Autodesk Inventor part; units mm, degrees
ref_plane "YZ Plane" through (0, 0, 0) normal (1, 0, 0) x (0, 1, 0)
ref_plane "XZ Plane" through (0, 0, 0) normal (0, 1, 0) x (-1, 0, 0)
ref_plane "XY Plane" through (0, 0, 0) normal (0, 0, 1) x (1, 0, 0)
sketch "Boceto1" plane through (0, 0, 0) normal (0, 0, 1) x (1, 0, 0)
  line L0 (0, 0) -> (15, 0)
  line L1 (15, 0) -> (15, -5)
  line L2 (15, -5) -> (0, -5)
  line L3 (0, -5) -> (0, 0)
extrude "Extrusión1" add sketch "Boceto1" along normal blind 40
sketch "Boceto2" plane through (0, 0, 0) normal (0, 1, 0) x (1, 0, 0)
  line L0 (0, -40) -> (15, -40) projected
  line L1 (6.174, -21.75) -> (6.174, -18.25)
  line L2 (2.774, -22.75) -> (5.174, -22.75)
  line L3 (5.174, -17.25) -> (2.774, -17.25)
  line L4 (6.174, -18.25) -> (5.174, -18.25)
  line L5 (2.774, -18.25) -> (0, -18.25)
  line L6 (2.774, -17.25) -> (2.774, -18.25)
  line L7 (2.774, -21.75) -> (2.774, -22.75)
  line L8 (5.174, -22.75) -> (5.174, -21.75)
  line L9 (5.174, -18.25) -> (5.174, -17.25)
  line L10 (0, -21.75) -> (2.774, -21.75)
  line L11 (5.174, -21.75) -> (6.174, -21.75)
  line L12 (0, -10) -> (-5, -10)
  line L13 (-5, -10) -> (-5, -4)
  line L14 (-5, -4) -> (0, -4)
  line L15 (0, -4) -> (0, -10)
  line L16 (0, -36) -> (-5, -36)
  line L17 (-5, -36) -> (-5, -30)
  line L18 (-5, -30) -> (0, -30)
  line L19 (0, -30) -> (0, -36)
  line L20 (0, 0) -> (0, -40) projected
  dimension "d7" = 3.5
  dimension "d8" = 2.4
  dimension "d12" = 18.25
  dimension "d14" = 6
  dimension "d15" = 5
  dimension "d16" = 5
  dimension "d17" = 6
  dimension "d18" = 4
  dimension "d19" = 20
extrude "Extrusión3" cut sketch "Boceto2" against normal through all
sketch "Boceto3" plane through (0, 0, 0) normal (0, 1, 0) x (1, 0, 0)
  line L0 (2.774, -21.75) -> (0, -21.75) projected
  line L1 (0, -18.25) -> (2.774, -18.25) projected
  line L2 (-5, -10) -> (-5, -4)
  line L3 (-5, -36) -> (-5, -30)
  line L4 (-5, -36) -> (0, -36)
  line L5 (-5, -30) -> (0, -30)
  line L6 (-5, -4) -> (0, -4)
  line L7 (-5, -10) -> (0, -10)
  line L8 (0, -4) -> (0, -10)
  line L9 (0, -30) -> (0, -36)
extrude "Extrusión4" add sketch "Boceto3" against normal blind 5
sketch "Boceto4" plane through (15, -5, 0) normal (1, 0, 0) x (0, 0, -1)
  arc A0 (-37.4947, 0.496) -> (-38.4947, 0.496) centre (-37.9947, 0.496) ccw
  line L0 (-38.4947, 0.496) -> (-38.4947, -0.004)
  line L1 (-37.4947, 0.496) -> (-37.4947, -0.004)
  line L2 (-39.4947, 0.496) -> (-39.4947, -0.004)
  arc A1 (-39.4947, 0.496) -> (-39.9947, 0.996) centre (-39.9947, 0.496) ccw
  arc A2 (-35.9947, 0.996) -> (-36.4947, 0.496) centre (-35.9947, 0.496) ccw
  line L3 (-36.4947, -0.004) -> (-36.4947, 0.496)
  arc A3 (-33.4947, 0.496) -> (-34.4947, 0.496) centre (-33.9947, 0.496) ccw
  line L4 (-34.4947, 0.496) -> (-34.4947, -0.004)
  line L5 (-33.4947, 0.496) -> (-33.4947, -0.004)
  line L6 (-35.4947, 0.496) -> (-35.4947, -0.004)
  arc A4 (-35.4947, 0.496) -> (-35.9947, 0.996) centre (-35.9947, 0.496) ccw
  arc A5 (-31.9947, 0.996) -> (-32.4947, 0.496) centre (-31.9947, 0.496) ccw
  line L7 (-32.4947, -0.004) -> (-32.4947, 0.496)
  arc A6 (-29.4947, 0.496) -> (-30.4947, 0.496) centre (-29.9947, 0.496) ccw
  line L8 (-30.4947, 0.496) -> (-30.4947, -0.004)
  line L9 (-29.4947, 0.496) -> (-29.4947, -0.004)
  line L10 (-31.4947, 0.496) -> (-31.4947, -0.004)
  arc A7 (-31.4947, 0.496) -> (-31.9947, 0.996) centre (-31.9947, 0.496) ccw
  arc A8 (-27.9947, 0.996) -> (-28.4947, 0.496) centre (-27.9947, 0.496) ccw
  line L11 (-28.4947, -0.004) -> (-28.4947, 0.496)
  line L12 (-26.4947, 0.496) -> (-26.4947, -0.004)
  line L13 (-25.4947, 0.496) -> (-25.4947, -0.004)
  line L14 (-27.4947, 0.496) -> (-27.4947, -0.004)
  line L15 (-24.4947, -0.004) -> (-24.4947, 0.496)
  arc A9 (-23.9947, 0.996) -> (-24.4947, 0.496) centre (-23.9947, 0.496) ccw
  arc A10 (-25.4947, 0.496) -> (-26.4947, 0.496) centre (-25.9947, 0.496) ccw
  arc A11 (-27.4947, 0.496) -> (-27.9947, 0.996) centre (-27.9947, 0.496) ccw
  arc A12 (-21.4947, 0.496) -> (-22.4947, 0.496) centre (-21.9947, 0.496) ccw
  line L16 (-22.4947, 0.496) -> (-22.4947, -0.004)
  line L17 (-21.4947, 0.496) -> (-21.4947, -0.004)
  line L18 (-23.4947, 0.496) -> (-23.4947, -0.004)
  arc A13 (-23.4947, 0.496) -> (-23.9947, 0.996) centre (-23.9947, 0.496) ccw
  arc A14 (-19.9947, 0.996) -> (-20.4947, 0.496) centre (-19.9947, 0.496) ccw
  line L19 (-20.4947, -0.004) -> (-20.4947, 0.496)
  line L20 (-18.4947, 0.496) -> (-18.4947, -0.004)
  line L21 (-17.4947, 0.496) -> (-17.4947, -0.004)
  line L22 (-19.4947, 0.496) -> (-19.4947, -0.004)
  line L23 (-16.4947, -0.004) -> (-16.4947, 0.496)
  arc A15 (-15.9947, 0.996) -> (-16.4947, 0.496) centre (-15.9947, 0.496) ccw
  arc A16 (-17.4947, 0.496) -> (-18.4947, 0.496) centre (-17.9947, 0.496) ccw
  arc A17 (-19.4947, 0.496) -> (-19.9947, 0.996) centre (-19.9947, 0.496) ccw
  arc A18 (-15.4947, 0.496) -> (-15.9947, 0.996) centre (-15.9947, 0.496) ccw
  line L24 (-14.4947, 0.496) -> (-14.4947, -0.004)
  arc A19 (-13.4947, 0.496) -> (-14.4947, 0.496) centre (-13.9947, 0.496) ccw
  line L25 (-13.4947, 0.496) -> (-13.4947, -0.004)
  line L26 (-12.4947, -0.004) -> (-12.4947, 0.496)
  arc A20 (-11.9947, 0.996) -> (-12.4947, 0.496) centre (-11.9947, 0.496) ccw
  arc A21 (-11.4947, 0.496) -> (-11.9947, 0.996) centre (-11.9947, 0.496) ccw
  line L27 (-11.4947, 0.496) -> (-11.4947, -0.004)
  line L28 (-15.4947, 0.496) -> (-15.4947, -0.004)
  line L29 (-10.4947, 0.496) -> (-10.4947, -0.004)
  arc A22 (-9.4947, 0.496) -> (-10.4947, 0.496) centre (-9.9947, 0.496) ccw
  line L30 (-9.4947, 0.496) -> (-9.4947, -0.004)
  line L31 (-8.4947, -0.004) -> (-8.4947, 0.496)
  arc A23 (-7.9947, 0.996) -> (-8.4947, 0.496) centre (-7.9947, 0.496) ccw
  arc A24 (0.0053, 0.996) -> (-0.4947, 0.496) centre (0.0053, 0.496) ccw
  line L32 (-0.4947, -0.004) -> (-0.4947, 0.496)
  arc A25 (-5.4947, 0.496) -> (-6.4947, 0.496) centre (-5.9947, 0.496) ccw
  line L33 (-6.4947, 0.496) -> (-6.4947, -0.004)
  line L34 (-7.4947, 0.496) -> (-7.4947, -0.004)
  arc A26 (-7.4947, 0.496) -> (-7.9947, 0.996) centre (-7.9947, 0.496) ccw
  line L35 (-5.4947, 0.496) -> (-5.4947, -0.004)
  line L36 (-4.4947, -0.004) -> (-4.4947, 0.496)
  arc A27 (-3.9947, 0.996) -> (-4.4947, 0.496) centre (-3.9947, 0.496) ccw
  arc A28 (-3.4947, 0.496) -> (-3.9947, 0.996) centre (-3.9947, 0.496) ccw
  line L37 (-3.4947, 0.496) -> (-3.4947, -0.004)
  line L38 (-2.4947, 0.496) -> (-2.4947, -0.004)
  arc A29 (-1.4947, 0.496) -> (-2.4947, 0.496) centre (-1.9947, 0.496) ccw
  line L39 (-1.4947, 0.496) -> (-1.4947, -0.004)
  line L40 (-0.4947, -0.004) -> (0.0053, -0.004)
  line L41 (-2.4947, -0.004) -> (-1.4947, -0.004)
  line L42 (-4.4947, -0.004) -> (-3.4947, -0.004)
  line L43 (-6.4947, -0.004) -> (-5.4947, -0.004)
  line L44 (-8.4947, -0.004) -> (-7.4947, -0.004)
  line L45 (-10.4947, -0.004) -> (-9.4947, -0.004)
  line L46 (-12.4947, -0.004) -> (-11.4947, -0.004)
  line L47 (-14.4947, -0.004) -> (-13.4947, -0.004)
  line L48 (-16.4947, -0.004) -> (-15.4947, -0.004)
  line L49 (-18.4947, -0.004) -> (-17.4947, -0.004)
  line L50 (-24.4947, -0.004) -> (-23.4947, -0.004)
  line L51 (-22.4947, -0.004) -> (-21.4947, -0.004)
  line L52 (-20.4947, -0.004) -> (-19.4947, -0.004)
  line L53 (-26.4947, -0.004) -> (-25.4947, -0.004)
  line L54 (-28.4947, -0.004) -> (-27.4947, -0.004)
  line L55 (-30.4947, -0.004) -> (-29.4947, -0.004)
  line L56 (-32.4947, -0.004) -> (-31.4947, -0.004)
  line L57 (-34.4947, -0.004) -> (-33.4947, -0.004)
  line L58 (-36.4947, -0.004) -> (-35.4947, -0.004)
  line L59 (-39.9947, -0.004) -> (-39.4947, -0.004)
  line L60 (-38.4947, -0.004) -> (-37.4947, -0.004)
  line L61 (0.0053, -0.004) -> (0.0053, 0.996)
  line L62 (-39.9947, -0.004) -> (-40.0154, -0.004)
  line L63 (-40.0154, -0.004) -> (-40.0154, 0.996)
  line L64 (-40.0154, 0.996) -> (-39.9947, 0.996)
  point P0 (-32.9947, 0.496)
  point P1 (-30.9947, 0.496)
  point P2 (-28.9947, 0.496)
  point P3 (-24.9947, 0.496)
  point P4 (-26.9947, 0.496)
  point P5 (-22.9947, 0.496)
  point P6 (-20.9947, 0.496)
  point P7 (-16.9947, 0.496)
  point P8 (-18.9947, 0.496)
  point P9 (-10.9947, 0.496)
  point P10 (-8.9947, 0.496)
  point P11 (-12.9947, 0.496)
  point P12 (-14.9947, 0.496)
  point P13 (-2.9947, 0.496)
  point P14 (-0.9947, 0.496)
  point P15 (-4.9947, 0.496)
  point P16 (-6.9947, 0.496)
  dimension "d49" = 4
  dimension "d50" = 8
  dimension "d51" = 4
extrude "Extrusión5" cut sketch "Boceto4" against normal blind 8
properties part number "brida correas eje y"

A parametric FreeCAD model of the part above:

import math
import FreeCAD as App
import Part
import Sketcher
Q = App.Units.Quantity

doc = App.newDocument("Part")
body = doc.addObject("PartDesign::Body", "Body")

# Sketch on XY plane
sketch1 = doc.addObject("Sketcher::SketchObject", "Sketch")
body.addObject(sketch1)
sketch1.AttachmentSupport = (doc.XY_Plane, [""])
sketch1.MapMode = "FlatFace"
sketch1.addGeometry([
    Part.LineSegment(App.Vector(15, 0, 0), App.Vector(0, 0, 0)),
    Part.LineSegment(App.Vector(0, 0, 0), App.Vector(0, -5, 0)),
    Part.LineSegment(App.Vector(0, -5, 0), App.Vector(15, -5, 0)),
    Part.LineSegment(App.Vector(15, -5, 0), App.Vector(15, 0, 0)),
], False)
sketch1.addConstraint([
    Sketcher.Constraint("Coincident", 0, 2, 1, 1),
    Sketcher.Constraint("Coincident", 1, 2, 2, 1),
    Sketcher.Constraint("Coincident", 2, 2, 3, 1),
    Sketcher.Constraint("Coincident", 3, 2, 0, 1),
    Sketcher.Constraint("Horizontal", 0),
    Sketcher.Constraint("Vertical", 1),
    Sketcher.Constraint("Horizontal", 2),
    Sketcher.Constraint("Vertical", 3),
    Sketcher.Constraint("Coincident", 0, 2, -1, 1),
    Sketcher.Constraint("DistanceX", 0, 2, 0, 1, Q("15 mm")),
    Sketcher.Constraint("DistanceY", 1, 2, 1, 1, Q("5 mm")),
])
pad1 = doc.addObject("PartDesign::Pad", "Pad")
body.addObject(pad1)
pad1.Profile = sketch1
pad1.Length = 40

# Sketch on XZ plane
sketch2 = doc.addObject("Sketcher::SketchObject", "Sketch001")
body.addObject(sketch2)
sketch2.AttachmentSupport = (doc.XZ_Plane, [""])
sketch2.MapMode = "FlatFace"
sketch2.addGeometry([
    Part.LineSegment(App.Vector(5.2, 21.8, 0), App.Vector(6.2, 21.8, 0)),  # 0
    Part.LineSegment(App.Vector(6.2, 21.8, 0), App.Vector(6.2, 18.2, 0)),  # 1
    Part.LineSegment(App.Vector(6.2, 18.2, 0), App.Vector(5.2, 18.2, 0)),  # 2
    Part.LineSegment(App.Vector(5.2, 18.2, 0), App.Vector(5.2, 17.2, 0)),  # 3
    Part.LineSegment(App.Vector(5.2, 17.2, 0), App.Vector(2.8, 17.2, 0)),  # 4
    Part.LineSegment(App.Vector(2.8, 17.2, 0), App.Vector(2.8, 18.2, 0)),  # 5
    Part.LineSegment(App.Vector(2.8, 18.2, 0), App.Vector(0, 18.2, 0)),  # 6
    Part.LineSegment(App.Vector(0, 18.2, 0), App.Vector(0, 21.8, 0)),  # 7
    Part.LineSegment(App.Vector(0, 21.8, 0), App.Vector(2.8, 21.8, 0)),  # 8
    Part.LineSegment(App.Vector(2.8, 21.8, 0), App.Vector(2.8, 22.8, 0)),  # 9
    Part.LineSegment(App.Vector(2.8, 22.8, 0), App.Vector(5.2, 22.8, 0)),  # 10
    Part.LineSegment(App.Vector(5.2, 22.8, 0), App.Vector(5.2, 21.8, 0)),  # 11
    Part.LineSegment(App.Vector(0, 36, 0), App.Vector(0, 30, 0)),  # 12
    Part.LineSegment(App.Vector(0, 30, 0), App.Vector(-5, 30, 0)),  # 13
    Part.LineSegment(App.Vector(-5, 30, 0), App.Vector(-5, 36, 0)),  # 14
    Part.LineSegment(App.Vector(-5, 36, 0), App.Vector(0, 36, 0)),  # 15
    Part.LineSegment(App.Vector(-5, 10, 0), App.Vector(0, 10, 0)),  # 16
    Part.LineSegment(App.Vector(0, 10, 0), App.Vector(0, 4, 0)),  # 17
    Part.LineSegment(App.Vector(0, 4, 0), App.Vector(-5, 4, 0)),  # 18
    Part.LineSegment(App.Vector(-5, 4, 0), App.Vector(-5, 10, 0)),  # 19
], False)
sketch2.addConstraint([
    Sketcher.Constraint("Coincident", 0, 2, 1, 1),
    Sketcher.Constraint("Coincident", 1, 2, 2, 1),
    Sketcher.Constraint("Coincident", 2, 2, 3, 1),
    Sketcher.Constraint("Coincident", 3, 2, 4, 1),
    Sketcher.Constraint("Coincident", 4, 2, 5, 1),
    Sketcher.Constraint("Coincident", 5, 2, 6, 1),
    Sketcher.Constraint("Coincident", 6, 2, 7, 1),
    Sketcher.Constraint("Coincident", 7, 2, 8, 1),
    Sketcher.Constraint("Coincident", 8, 2, 9, 1),
    Sketcher.Constraint("Coincident", 9, 2, 10, 1),
    Sketcher.Constraint("Coincident", 10, 2, 11, 1),
    Sketcher.Constraint("Coincident", 11, 2, 0, 1),
    Sketcher.Constraint("Coincident", 12, 2, 13, 1),
    Sketcher.Constraint("Coincident", 13, 2, 14, 1),
    Sketcher.Constraint("Coincident", 14, 2, 15, 1),
    Sketcher.Constraint("Coincident", 15, 2, 12, 1),
    Sketcher.Constraint("Coincident", 16, 2, 17, 1),
    Sketcher.Constraint("Coincident", 17, 2, 18, 1),
    Sketcher.Constraint("Coincident", 18, 2, 19, 1),
    Sketcher.Constraint("Coincident", 19, 2, 16, 1),
    Sketcher.Constraint("Horizontal", 0),
    Sketcher.Constraint("Vertical", 1),
    Sketcher.Constraint("Horizontal", 2),
    Sketcher.Constraint("Vertical", 3),
    Sketcher.Constraint("Horizontal", 4),
    Sketcher.Constraint("Vertical", 5),
    Sketcher.Constraint("Horizontal", 6),
    Sketcher.Constraint("Vertical", 7),
    Sketcher.Constraint("Horizontal", 8),
    Sketcher.Constraint("Vertical", 9),
    Sketcher.Constraint("Horizontal", 10),
    Sketcher.Constraint("Vertical", 11),
    Sketcher.Constraint("Vertical", 12),
    Sketcher.Constraint("Horizontal", 13),
    Sketcher.Constraint("Vertical", 14),
    Sketcher.Constraint("Horizontal", 15),
    Sketcher.Constraint("Horizontal", 16),
    Sketcher.Constraint("Vertical", 17),
    Sketcher.Constraint("Horizontal", 18),
    Sketcher.Constraint("Vertical", 19),
    Sketcher.Constraint("PointOnObject", 6, 2, -2),
    Sketcher.Constraint("PointOnObject", 12, 2, -2),
    Sketcher.Constraint("PointOnObject", 16, 2, -2),
    Sketcher.Constraint("Horizontal", 2, 2, 5, 2),
    Sketcher.Constraint("Horizontal", 0, 2, 7, 2),
    Sketcher.Constraint("Vertical", 5, 2, 8, 2),
    Sketcher.Constraint("Vertical", 3, 2, 10, 2),
    Sketcher.Constraint("Vertical", 14, 2, 18, 2),
    Sketcher.Constraint("Equal", 2, 3),
    Sketcher.Constraint("Equal", 5, 9),
    Sketcher.Constraint("Equal", 14, 17),
    Sketcher.Constraint("DistanceX", 13, 2, 13, 1, Q("5 mm")),
    Sketcher.Constraint("DistanceY", 12, 2, 12, 1, Q("6 mm")),
    Sketcher.Constraint("DistanceX", 4, 2, 4, 1, Q("2.4 mm")),
    Sketcher.Constraint("DistanceY", 1, 2, 1, 1, Q("3.5 mm")),
    Sketcher.Constraint("DistanceY", -1, 1, 17, 2, Q("4 mm")),
    Sketcher.Constraint("DistanceX", 0, 1, 0, 2, Q("1 mm")),
    Sketcher.Constraint("DistanceY", -1, 1, 1, 2, Q("18.25 mm")),
    Sketcher.Constraint("DistanceY", -1, 1, 12, 2, Q("30 mm")),
    Sketcher.Constraint("DistanceX", 6, 2, 6, 1, Q("2.774 mm")),
])
pocket1 = doc.addObject("PartDesign::Pocket", "Pocket")
body.addObject(pocket1)
pocket1.Profile = sketch2
pocket1.Type = "ThroughAll"
pocket1.Reversed = True

# Sketch on XZ plane
sketch3 = doc.addObject("Sketcher::SketchObject", "Sketch002")
body.addObject(sketch3)
sketch3.AttachmentSupport = (doc.XZ_Plane, [""])
sketch3.MapMode = "FlatFace"
sketch3.addGeometry([
    Part.LineSegment(App.Vector(-5, 4, 0), App.Vector(-5, 10, 0)),  # 0
    Part.LineSegment(App.Vector(-5, 10, 0), App.Vector(0, 10, 0)),  # 1
    Part.LineSegment(App.Vector(0, 10, 0), App.Vector(0, 4, 0)),  # 2
    Part.LineSegment(App.Vector(0, 4, 0), App.Vector(-5, 4, 0)),  # 3
    Part.LineSegment(App.Vector(-5, 30, 0), App.Vector(-5, 36, 0)),  # 4
    Part.LineSegment(App.Vector(-5, 36, 0), App.Vector(0, 36, 0)),  # 5
    Part.LineSegment(App.Vector(0, 36, 0), App.Vector(0, 30, 0)),  # 6
    Part.LineSegment(App.Vector(0, 30, 0), App.Vector(-5, 30, 0)),  # 7
], False)
sketch3.addConstraint([
    Sketcher.Constraint("Coincident", 0, 2, 1, 1),
    Sketcher.Constraint("Coincident", 1, 2, 2, 1),
    Sketcher.Constraint("Coincident", 2, 2, 3, 1),
    Sketcher.Constraint("Coincident", 3, 2, 0, 1),
    Sketcher.Constraint("Coincident", 4, 2, 5, 1),
    Sketcher.Constraint("Coincident", 5, 2, 6, 1),
    Sketcher.Constraint("Coincident", 6, 2, 7, 1),
    Sketcher.Constraint("Coincident", 7, 2, 4, 1),
    Sketcher.Constraint("Vertical", 0),
    Sketcher.Constraint("Horizontal", 1),
    Sketcher.Constraint("Vertical", 2),
    Sketcher.Constraint("Horizontal", 3),
    Sketcher.Constraint("Vertical", 4),
    Sketcher.Constraint("Horizontal", 5),
    Sketcher.Constraint("Vertical", 6),
    Sketcher.Constraint("Horizontal", 7),
    Sketcher.Constraint("PointOnObject", 1, 2, -2),
    Sketcher.Constraint("PointOnObject", 5, 2, -2),
    Sketcher.Constraint("Vertical", 3, 2, 4, 2),
    Sketcher.Constraint("Equal", 2, 4),
    Sketcher.Constraint("DistanceX", 1, 1, 1, 2, Q("5 mm")),
    Sketcher.Constraint("DistanceY", 0, 1, 0, 2, Q("6 mm")),
    Sketcher.Constraint("DistanceY", -1, 1, 0, 2, Q("10 mm")),
    Sketcher.Constraint("DistanceY", -1, 1, 4, 2, Q("36 mm")),
])
pad2 = doc.addObject("PartDesign::Pad", "Pad001")
body.addObject(pad2)
pad2.Profile = sketch3
pad2.Length = 5

# Sketch on YZ plane
sketch4 = doc.addObject("Sketcher::SketchObject", "Sketch003")
body.addObject(sketch4)
sketch4.AttachmentSupport = (doc.YZ_Plane, [""])
sketch4.MapMode = "FlatFace"
sketch4.AttachmentOffset = App.Placement(App.Vector(0, 0, 15), App.Rotation())
sketch4.addGeometry([
    Part.LineSegment(App.Vector(-5.004, 37.495, 0), App.Vector(-4.504, 37.495, 0)),  # 0
    Part.ArcOfCircle(Part.Circle(App.Vector(-4.504, 37.995, 0), App.Vector(0, 0, 1), 0.5), math.radians(-90), math.radians(90)),  # 1
    Part.LineSegment(App.Vector(-4.504, 38.495, 0), App.Vector(-5.004, 38.495, 0)),  # 2
    Part.LineSegment(App.Vector(-5.004, 38.495, 0), App.Vector(-5.004, 37.495, 0)),  # 3
    Part.LineSegment(App.Vector(-5.004, 39.495, 0), App.Vector(-4.504, 39.495, 0)),  # 4
    Part.ArcOfCircle(Part.Circle(App.Vector(-4.504, 39.995, 0), App.Vector(0, 0, 1), 0.5), math.radians(-90), math.radians(0)),  # 5
    Part.LineSegment(App.Vector(-4.004, 39.995, 0), App.Vector(-4.004, 40.015, 0)),  # 6
    Part.LineSegment(App.Vector(-4.004, 40.015, 0), App.Vector(-5.004, 40.015, 0)),  # 7
    Part.LineSegment(App.Vector(-5.004, 40.015, 0), App.Vector(-5.004, 39.495, 0)),  # 8
    Part.ArcOfCircle(Part.Circle(App.Vector(-4.504, 35.995, 0), App.Vector(0, 0, 1), 0.5), math.radians(-90), math.radians(90)),  # 9
    Part.LineSegment(App.Vector(-4.504, 36.495, 0), App.Vector(-5.004, 36.495, 0)),  # 10
    Part.LineSegment(App.Vector(-5.004, 36.495, 0), App.Vector(-5.004, 35.495, 0)),  # 11
    Part.LineSegment(App.Vector(-5.004, 35.495, 0), App.Vector(-4.504, 35.495, 0)),  # 12
    Part.LineSegment(App.Vector(-5.004, 33.495, 0), App.Vector(-4.504, 33.495, 0)),  # 13
    Part.ArcOfCircle(Part.Circle(App.Vector(-4.504, 33.995, 0), App.Vector(0, 0, 1), 0.5), math.radians(-90), math.radians(90)),  # 14
    Part.LineSegment(App.Vector(-4.504, 34.495, 0), App.Vector(-5.004, 34.495, 0)),  # 15
    Part.LineSegment(App.Vector(-5.004, 34.495, 0), App.Vector(-5.004, 33.495, 0)),  # 16
    Part.ArcOfCircle(Part.Circle(App.Vector(-4.504, 31.995, 0), App.Vector(0, 0, 1), 0.5), math.radians(-90), math.radians(90)),  # 17
    Part.LineSegment(App.Vector(-4.504, 32.495, 0), App.Vector(-5.004, 32.495, 0)),  # 18
    Part.LineSegment(App.Vector(-5.004, 32.495, 0), App.Vector(-5.004, 31.495, 0)),  # 19
    Part.LineSegment(App.Vector(-5.004, 31.495, 0), App.Vector(-4.504, 31.495, 0)),  # 20
    Part.LineSegment(App.Vector(-5.004, 29.495, 0), App.Vector(-4.504, 29.495, 0)),  # 21
    Part.ArcOfCircle(Part.Circle(App.Vector(-4.504, 29.995, 0), App.Vector(0, 0, 1), 0.5), math.radians(-90), math.radians(90)),  # 22
    Part.LineSegment(App.Vector(-4.504, 30.495, 0), App.Vector(-5.004, 30.495, 0)),  # 23
    Part.LineSegment(App.Vector(-5.004, 30.495, 0), App.Vector(-5.004, 29.495, 0)),  # 24
    Part.ArcOfCircle(Part.Circle(App.Vector(-4.504, 27.995, 0), App.Vector(0, 0, 1), 0.5), math.radians(-90), math.radians(90)),  # 25
    Part.LineSegment(App.Vector(-4.504, 28.495, 0), App.Vector(-5.004, 28.495, 0)),  # 26
    Part.LineSegment(App.Vector(-5.004, 28.495, 0), App.Vector(-5.004, 27.495, 0)),  # 27
    Part.LineSegment(App.Vector(-5.004, 27.495, 0), App.Vector(-4.504, 27.495, 0)),  # 28
    Part.ArcOfCircle(Part.Circle(App.Vector(-4.504, 25.995, 0), App.Vector(0, 0, 1), 0.5), math.radians(-90), math.radians(90)),  # 29
    Part.LineSegment(App.Vector(-4.504, 26.495, 0), App.Vector(-5.004, 26.495, 0)),  # 30
    Part.LineSegment(App.Vector(-5.004, 26.495, 0), App.Vector(-5.004, 25.495, 0)),  # 31
    Part.LineSegment(App.Vector(-5.004, 25.495, 0), App.Vector(-4.504, 25.495, 0)),  # 32
    Part.LineSegment(App.Vector(-4.504, 24.495, 0), App.Vector(-5.004, 24.495, 0)),  # 33
    Part.LineSegment(App.Vector(-5.004, 24.495, 0), App.Vector(-5.004, 23.495, 0)),  # 34
    Part.LineSegment(App.Vector(-5.004, 23.495, 0), App.Vector(-4.504, 23.495, 0)),  # 35
    Part.ArcOfCircle(Part.Circle(App.Vector(-4.504, 23.995, 0), App.Vector(0, 0, 1), 0.5), math.radians(-90), math.radians(90)),  # 36
    Part.LineSegment(App.Vector(-5.004, 21.495, 0), App.Vector(-4.504, 21.495, 0)),  # 37
    Part.ArcOfCircle(Part.Circle(App.Vector(-4.504, 21.995, 0), App.Vector(0, 0, 1), 0.5), math.radians(-90), math.radians(90)),  # 38
    Part.LineSegment(App.Vector(-4.504, 22.495, 0), App.Vector(-5.004, 22.495, 0)),  # 39
    Part.LineSegment(App.Vector(-5.004, 22.495, 0), App.Vector(-5.004, 21.495, 0)),  # 40
    Part.ArcOfCircle(Part.Circle(App.Vector(-4.504, 19.995, 0), App.Vector(0, 0, 1), 0.5), math.radians(-90), math.radians(90)),  # 41
    Part.LineSegment(App.Vector(-4.504, 20.495, 0), App.Vector(-5.004, 20.495, 0)),  # 42
    Part.LineSegment(App.Vector(-5.004, 20.495, 0), App.Vector(-5.004, 19.495, 0)),  # 43
    Part.LineSegment(App.Vector(-5.004, 19.495, 0), App.Vector(-4.504, 19.495, 0)),  # 44
    Part.ArcOfCircle(Part.Circle(App.Vector(-4.504, 17.995, 0), App.Vector(0, 0, 1), 0.5), math.radians(-90), math.radians(90)),  # 45
    Part.LineSegment(App.Vector(-4.504, 18.495, 0), App.Vector(-5.004, 18.495, 0)),  # 46
    Part.LineSegment(App.Vector(-5.004, 18.495, 0), App.Vector(-5.004, 17.495, 0)),  # 47
    Part.LineSegment(App.Vector(-5.004, 17.495, 0), App.Vector(-4.504, 17.495, 0)),  # 48
    Part.LineSegment(App.Vector(-4.504, 16.495, 0), App.Vector(-5.004, 16.495, 0)),  # 49
    Part.LineSegment(App.Vector(-5.004, 16.495, 0), App.Vector(-5.004, 15.495, 0)),  # 50
    Part.LineSegment(App.Vector(-5.004, 15.495, 0), App.Vector(-4.504, 15.495, 0)),  # 51
    Part.ArcOfCircle(Part.Circle(App.Vector(-4.504, 15.995, 0), App.Vector(0, 0, 1), 0.5), math.radians(-90), math.radians(90)),  # 52
    Part.ArcOfCircle(Part.Circle(App.Vector(-4.504, 13.995, 0), App.Vector(0, 0, 1), 0.5), math.radians(-90), math.radians(90)),  # 53
    Part.LineSegment(App.Vector(-4.504, 14.495, 0), App.Vector(-5.004, 14.495, 0)),  # 54
    Part.LineSegment(App.Vector(-5.004, 14.495, 0), App.Vector(-5.004, 13.495, 0)),  # 55
    Part.LineSegment(App.Vector(-5.004, 13.495, 0), App.Vector(-4.504, 13.495, 0)),  # 56
    Part.LineSegment(App.Vector(-4.504, 12.495, 0), App.Vector(-5.004, 12.495, 0)),  # 57
    Part.LineSegment(App.Vector(-5.004, 12.495, 0), App.Vector(-5.004, 11.495, 0)),  # 58
    Part.LineSegment(App.Vector(-5.004, 11.495, 0), App.Vector(-4.504, 11.495, 0)),  # 59
    Part.ArcOfCircle(Part.Circle(App.Vector(-4.504, 11.995, 0), App.Vector(0, 0, 1), 0.5), math.radians(-90), math.radians(90)),  # 60
    Part.ArcOfCircle(Part.Circle(App.Vector(-4.504, 9.995, 0), App.Vector(0, 0, 1), 0.5), math.radians(-90), math.radians(90)),  # 61
    Part.LineSegment(App.Vector(-4.504, 10.495, 0), App.Vector(-5.004, 10.495, 0)),  # 62
    Part.LineSegment(App.Vector(-5.004, 10.495, 0), App.Vector(-5.004, 9.495, 0)),  # 63
    Part.LineSegment(App.Vector(-5.004, 9.495, 0), App.Vector(-4.504, 9.495, 0)),  # 64
    Part.LineSegment(App.Vector(-4.504, 8.495, 0), App.Vector(-5.004, 8.495, 0)),  # 65
    Part.LineSegment(App.Vector(-5.004, 8.495, 0), App.Vector(-5.004, 7.495, 0)),  # 66
    Part.LineSegment(App.Vector(-5.004, 7.495, 0), App.Vector(-4.504, 7.495, 0)),  # 67
    Part.ArcOfCircle(Part.Circle(App.Vector(-4.504, 7.995, 0), App.Vector(0, 0, 1), 0.5), math.radians(-90), math.radians(90)),  # 68
    Part.LineSegment(App.Vector(-5.004, -0.005, 0), App.Vector(-4.004, -0.005, 0)),  # 69
    Part.ArcOfCircle(Part.Circle(App.Vector(-4.504, -0.005, 0), App.Vector(0, 0, 1), 0.5), math.radians(0), math.radians(90)),  # 70
    Part.LineSegment(App.Vector(-4.504, 0.495, 0), App.Vector(-5.004, 0.495, 0)),  # 71
    Part.LineSegment(App.Vector(-5.004, 0.495, 0), App.Vector(-5.004, -0.005, 0)),  # 72
    Part.LineSegment(App.Vector(-5.004, 5.495, 0), App.Vector(-4.504, 5.495, 0)),  # 73
    Part.ArcOfCircle(Part.Circle(App.Vector(-4.504, 5.995, 0), App.Vector(0, 0, 1), 0.5), math.radians(-90), math.radians(90)),  # 74
    Part.LineSegment(App.Vector(-4.504, 6.495, 0), App.Vector(-5.004, 6.495, 0)),  # 75
    Part.LineSegment(App.Vector(-5.004, 6.495, 0), App.Vector(-5.004, 5.495, 0)),  # 76
    Part.LineSegment(App.Vector(-4.504, 4.495, 0), App.Vector(-5.004, 4.495, 0)),  # 77
    Part.LineSegment(App.Vector(-5.004, 4.495, 0), App.Vector(-5.004, 3.495, 0)),  # 78
    Part.LineSegment(App.Vector(-5.004, 3.495, 0), App.Vector(-4.504, 3.495, 0)),  # 79
    Part.ArcOfCircle(Part.Circle(App.Vector(-4.504, 3.995, 0), App.Vector(0, 0, 1), 0.5), math.radians(-90), math.radians(90)),  # 80
    Part.ArcOfCircle(Part.Circle(App.Vector(-4.504, 1.995, 0), App.Vector(0, 0, 1), 0.5), math.radians(-90), math.radians(90)),  # 81
    Part.LineSegment(App.Vector(-4.504, 2.495, 0), App.Vector(-5.004, 2.495, 0)),  # 82
    Part.LineSegment(App.Vector(-5.004, 2.495, 0), App.Vector(-5.004, 1.495, 0)),  # 83
    Part.LineSegment(App.Vector(-5.004, 1.495, 0), App.Vector(-4.504, 1.495, 0)),  # 84
], False)
sketch4.addConstraint([
    Sketcher.Constraint("Tangent", 0, 2, 1, 1),
    Sketcher.Constraint("Tangent", 1, 2, 2, 1),
    Sketcher.Constraint("Coincident", 2, 2, 3, 1),
    Sketcher.Constraint("Coincident", 3, 2, 0, 1),
    Sketcher.Constraint("Tangent", 4, 2, 5, 1),
    Sketcher.Constraint("Tangent", 5, 2, 6, 1),
    Sketcher.Constraint("Coincident", 6, 2, 7, 1),
    Sketcher.Constraint("Coincident", 7, 2, 8, 1),
    Sketcher.Constraint("Coincident", 8, 2, 4, 1),
    Sketcher.Constraint("Tangent", 9, 2, 10, 1),
    Sketcher.Constraint("Coincident", 10, 2, 11, 1),
    Sketcher.Constraint("Coincident", 11, 2, 12, 1),
    Sketcher.Constraint("Tangent", 12, 2, 9, 1),
    Sketcher.Constraint("Tangent", 13, 2, 14, 1),
    Sketcher.Constraint("Tangent", 14, 2, 15, 1),
    Sketcher.Constraint("Coincident", 15, 2, 16, 1),
    Sketcher.Constraint("Coincident", 16, 2, 13, 1),
    Sketcher.Constraint("Tangent", 17, 2, 18, 1),
    Sketcher.Constraint("Coincident", 18, 2, 19, 1),
    Sketcher.Constraint("Coincident", 19, 2, 20, 1),
    Sketcher.Constraint("Tangent", 20, 2, 17, 1),
    Sketcher.Constraint("Tangent", 21, 2, 22, 1),
    Sketcher.Constraint("Tangent", 22, 2, 23, 1),
    Sketcher.Constraint("Coincident", 23, 2, 24, 1),
    Sketcher.Constraint("Coincident", 24, 2, 21, 1),
    Sketcher.Constraint("Tangent", 25, 2, 26, 1),
    Sketcher.Constraint("Coincident", 26, 2, 27, 1),
    Sketcher.Constraint("Coincident", 27, 2, 28, 1),
    Sketcher.Constraint("Tangent", 28, 2, 25, 1),
    Sketcher.Constraint("Tangent", 29, 2, 30, 1),
    Sketcher.Constraint("Coincident", 30, 2, 31, 1),
    Sketcher.Constraint("Coincident", 31, 2, 32, 1),
    Sketcher.Constraint("Tangent", 32, 2, 29, 1),
    Sketcher.Constraint("Coincident", 33, 2, 34, 1),
    Sketcher.Constraint("Coincident", 34, 2, 35, 1),
    Sketcher.Constraint("Tangent", 35, 2, 36, 1),
    Sketcher.Constraint("Tangent", 36, 2, 33, 1),
    Sketcher.Constraint("Tangent", 37, 2, 38, 1),
    Sketcher.Constraint("Tangent", 38, 2, 39, 1),
    Sketcher.Constraint("Coincident", 39, 2, 40, 1),
    Sketcher.Constraint("Coincident", 40, 2, 37, 1),
    Sketcher.Constraint("Tangent", 41, 2, 42, 1),
    Sketcher.Constraint("Coincident", 42, 2, 43, 1),
    Sketcher.Constraint("Coincident", 43, 2, 44, 1),
    Sketcher.Constraint("Tangent", 44, 2, 41, 1),
    Sketcher.Constraint("Tangent", 45, 2, 46, 1),
    Sketcher.Constraint("Coincident", 46, 2, 47, 1),
    Sketcher.Constraint("Coincident", 47, 2, 48, 1),
    Sketcher.Constraint("Tangent", 48, 2, 45, 1),
    Sketcher.Constraint("Coincident", 49, 2, 50, 1),
    Sketcher.Constraint("Coincident", 50, 2, 51, 1),
    Sketcher.Constraint("Tangent", 51, 2, 52, 1),
    Sketcher.Constraint("Tangent", 52, 2, 49, 1),
    Sketcher.Constraint("Tangent", 53, 2, 54, 1),
    Sketcher.Constraint("Coincident", 54, 2, 55, 1),
    Sketcher.Constraint("Coincident", 55, 2, 56, 1),
    Sketcher.Constraint("Tangent", 56, 2, 53, 1),
    Sketcher.Constraint("Coincident", 57, 2, 58, 1),
    Sketcher.Constraint("Coincident", 58, 2, 59, 1),
    Sketcher.Constraint("Tangent", 59, 2, 60, 1),
    Sketcher.Constraint("Tangent", 60, 2, 57, 1),
    Sketcher.Constraint("Tangent", 61, 2, 62, 1),
    Sketcher.Constraint("Coincident", 62, 2, 63, 1),
    Sketcher.Constraint("Coincident", 63, 2, 64, 1),
    Sketcher.Constraint("Tangent", 64, 2, 61, 1),
    Sketcher.Constraint("Coincident", 65, 2, 66, 1),
    Sketcher.Constraint("Coincident", 66, 2, 67, 1),
    Sketcher.Constraint("Tangent", 67, 2, 68, 1),
    Sketcher.Constraint("Tangent", 68, 2, 65, 1),
    Sketcher.Constraint("Coincident", 69, 2, 70, 1),
    Sketcher.Constraint("Tangent", 70, 2, 71, 1),
    Sketcher.Constraint("Coincident", 71, 2, 72, 1),
    Sketcher.Constraint("Coincident", 72, 2, 69, 1),
    Sketcher.Constraint("Tangent", 73, 2, 74, 1),
    Sketcher.Constraint("Tangent", 74, 2, 75, 1),
    Sketcher.Constraint("Coincident", 75, 2, 76, 1),
    Sketcher.Constraint("Coincident", 76, 2, 73, 1),
    Sketcher.Constraint("Coincident", 77, 2, 78, 1),
    Sketcher.Constraint("Coincident", 78, 2, 79, 1),
    Sketcher.Constraint("Tangent", 79, 2, 80, 1),
    Sketcher.Constraint("Tangent", 80, 2, 77, 1),
    Sketcher.Constraint("Tangent", 81, 2, 82, 1),
    Sketcher.Constraint("Coincident", 82, 2, 83, 1),
    Sketcher.Constraint("Coincident", 83, 2, 84, 1),
    Sketcher.Constraint("Tangent", 84, 2, 81, 1),
    Sketcher.Constraint("Horizontal", 0),
    Sketcher.Constraint("Horizontal", 2),
    Sketcher.Constraint("Vertical", 3),
    Sketcher.Constraint("Horizontal", 4),
    Sketcher.Constraint("Vertical", 6),
    Sketcher.Constraint("Horizontal", 7),
    Sketcher.Constraint("Vertical", 8),
    Sketcher.Constraint("Horizontal", 10),
    Sketcher.Constraint("Vertical", 11),
    Sketcher.Constraint("Horizontal", 12),
    Sketcher.Constraint("Horizontal", 13),
    Sketcher.Constraint("Horizontal", 15),
    Sketcher.Constraint("Vertical", 16),
    Sketcher.Constraint("Horizontal", 18),
    Sketcher.Constraint("Vertical", 19),
    Sketcher.Constraint("Horizontal", 20),
    Sketcher.Constraint("Horizontal", 21),
    Sketcher.Constraint("Horizontal", 23),
    Sketcher.Constraint("Vertical", 24),
    Sketcher.Constraint("Horizontal", 26),
    Sketcher.Constraint("Vertical", 27),
    Sketcher.Constraint("Horizontal", 28),
    Sketcher.Constraint("Horizontal", 30),
    Sketcher.Constraint("Vertical", 31),
    Sketcher.Constraint("Horizontal", 32),
    Sketcher.Constraint("Horizontal", 33),
    Sketcher.Constraint("Vertical", 34),
    Sketcher.Constraint("Horizontal", 35),
    Sketcher.Constraint("Horizontal", 37),
    Sketcher.Constraint("Horizontal", 39),
    Sketcher.Constraint("Vertical", 40),
    Sketcher.Constraint("Horizontal", 42),
    Sketcher.Constraint("Vertical", 43),
    Sketcher.Constraint("Horizontal", 44),
    Sketcher.Constraint("Horizontal", 46),
    Sketcher.Constraint("Vertical", 47),
    Sketcher.Constraint("Horizontal", 48),
    Sketcher.Constraint("Horizontal", 49),
    Sketcher.Constraint("Vertical", 50),
    Sketcher.Constraint("Horizontal", 51),
    Sketcher.Constraint("Horizontal", 54),
    Sketcher.Constraint("Vertical", 55),
    Sketcher.Constraint("Horizontal", 56),
    Sketcher.Constraint("Horizontal", 57),
    Sketcher.Constraint("Vertical", 58),
    Sketcher.Constraint("Horizontal", 59),
    Sketcher.Constraint("Horizontal", 62),
    Sketcher.Constraint("Vertical", 63),
    Sketcher.Constraint("Horizontal", 64),
    Sketcher.Constraint("Horizontal", 65),
    Sketcher.Constraint("Vertical", 66),
    Sketcher.Constraint("Horizontal", 67),
    Sketcher.Constraint("Horizontal", 69),
    Sketcher.Constraint("Horizontal", 71),
    Sketcher.Constraint("Vertical", 72),
    Sketcher.Constraint("Horizontal", 73),
    Sketcher.Constraint("Horizontal", 75),
    Sketcher.Constraint("Vertical", 76),
    Sketcher.Constraint("Horizontal", 77),
    Sketcher.Constraint("Vertical", 78),
    Sketcher.Constraint("Horizontal", 79),
    Sketcher.Constraint("Horizontal", 82),
    Sketcher.Constraint("Vertical", 83),
    Sketcher.Constraint("Horizontal", 84),
    Sketcher.Constraint("Equal", 1, 5),
    Sketcher.Constraint("Equal", 5, 9),
    Sketcher.Constraint("Equal", 9, 14),
    Sketcher.Constraint("Equal", 14, 17),
    Sketcher.Constraint("Equal", 17, 22),
    Sketcher.Constraint("Equal", 22, 25),
    Sketcher.Constraint("Equal", 25, 29),
    Sketcher.Constraint("Equal", 29, 36),
    Sketcher.Constraint("Equal", 36, 38),
    Sketcher.Constraint("Equal", 38, 41),
    Sketcher.Constraint("Equal", 41, 45),
    Sketcher.Constraint("Equal", 45, 52),
    Sketcher.Constraint("Equal", 52, 53),
    Sketcher.Constraint("Equal", 53, 60),
    Sketcher.Constraint("Equal", 60, 61),
    Sketcher.Constraint("Equal", 61, 68),
    Sketcher.Constraint("Equal", 68, 70),
    Sketcher.Constraint("Equal", 70, 74),
    Sketcher.Constraint("Equal", 74, 80),
    Sketcher.Constraint("Equal", 80, 81),
    Sketcher.Constraint("Horizontal", 70, 3, 69, 2),
    Sketcher.Constraint("Vertical", 1, 3, 5, 3),
    Sketcher.Constraint("Vertical", 5, 3, 9, 3),
    Sketcher.Constraint("Vertical", 9, 3, 14, 3),
    Sketcher.Constraint("Vertical", 14, 3, 17, 3),
    Sketcher.Constraint("Vertical", 17, 3, 22, 3),
    Sketcher.Constraint("Vertical", 22, 3, 25, 3),
    Sketcher.Constraint("Vertical", 25, 3, 29, 3),
    Sketcher.Constraint("Vertical", 29, 3, 36, 3),
    Sketcher.Constraint("Vertical", 36, 3, 38, 3),
    Sketcher.Constraint("Vertical", 38, 3, 41, 3),
    Sketcher.Constraint("Vertical", 41, 3, 45, 3),
    Sketcher.Constraint("Vertical", 45, 3, 52, 3),
    Sketcher.Constraint("Vertical", 52, 3, 53, 3),
    Sketcher.Constraint("Vertical", 53, 3, 60, 3),
    Sketcher.Constraint("Vertical", 60, 3, 61, 3),
    Sketcher.Constraint("Vertical", 61, 3, 68, 3),
    Sketcher.Constraint("Vertical", 68, 3, 70, 3),
    Sketcher.Constraint("Vertical", 70, 3, 74, 3),
    Sketcher.Constraint("Vertical", 74, 3, 80, 3),
    Sketcher.Constraint("Vertical", 80, 3, 81, 3),
    Sketcher.Constraint("Vertical", 3, 2, 7, 2),
    Sketcher.Constraint("Vertical", 8, 2, 10, 2),
    Sketcher.Constraint("Vertical", 11, 2, 15, 2),
    Sketcher.Constraint("Vertical", 16, 2, 18, 2),
    Sketcher.Constraint("Vertical", 19, 2, 23, 2),
    Sketcher.Constraint("Vertical", 24, 2, 26, 2),
    Sketcher.Constraint("Vertical", 27, 2, 30, 2),
    Sketcher.Constraint("Vertical", 31, 2, 33, 2),
    Sketcher.Constraint("Vertical", 34, 2, 39, 2),
    Sketcher.Constraint("Vertical", 40, 2, 42, 2),
    Sketcher.Constraint("Vertical", 43, 2, 46, 2),
    Sketcher.Constraint("Vertical", 47, 2, 49, 2),
    Sketcher.Constraint("Vertical", 50, 2, 54, 2),
    Sketcher.Constraint("Vertical", 55, 2, 57, 2),
    Sketcher.Constraint("Vertical", 58, 2, 62, 2),
    Sketcher.Constraint("Vertical", 63, 2, 65, 2),
    Sketcher.Constraint("Vertical", 66, 2, 71, 2),
    Sketcher.Constraint("Vertical", 72, 2, 75, 2),
    Sketcher.Constraint("Vertical", 76, 2, 77, 2),
    Sketcher.Constraint("Vertical", 78, 2, 82, 2),
    Sketcher.Constraint("Equal", 69, 3),
    Sketcher.Constraint("Radius", 1, Q("0.5 mm")),
    Sketcher.Constraint("DistanceY", 6, 1, 6, 2, Q("0.0207 mm")),
    Sketcher.Constraint("DistanceX", 1, 3, -1, 1, Q("4.504 mm")),
    Sketcher.Constraint("DistanceY", -1, 1, 1, 3, Q("37.9947 mm")),
    Sketcher.Constraint("DistanceY", -1, 1, 5, 3, Q("39.9947 mm")),
    Sketcher.Constraint("DistanceY", -1, 1, 9, 3, Q("35.9947 mm")),
    Sketcher.Constraint("DistanceY", -1, 1, 14, 3, Q("33.9947 mm")),
    Sketcher.Constraint("DistanceY", -1, 1, 17, 3, Q("31.9947 mm")),
    Sketcher.Constraint("DistanceY", -1, 1, 22, 3, Q("29.9947 mm")),
    Sketcher.Constraint("DistanceY", -1, 1, 25, 3, Q("27.9947 mm")),
    Sketcher.Constraint("DistanceY", -1, 1, 29, 3, Q("25.9947 mm")),
    Sketcher.Constraint("DistanceY", -1, 1, 36, 3, Q("23.9947 mm")),
    Sketcher.Constraint("DistanceY", -1, 1, 38, 3, Q("21.9947 mm")),
    Sketcher.Constraint("DistanceY", -1, 1, 41, 3, Q("19.9947 mm")),
    Sketcher.Constraint("DistanceY", -1, 1, 45, 3, Q("17.9947 mm")),
    Sketcher.Constraint("DistanceY", -1, 1, 52, 3, Q("15.9947 mm")),
    Sketcher.Constraint("DistanceY", -1, 1, 53, 3, Q("13.9947 mm")),
    Sketcher.Constraint("DistanceY", -1, 1, 60, 3, Q("11.9947 mm")),
    Sketcher.Constraint("DistanceY", -1, 1, 61, 3, Q("9.9947 mm")),
    Sketcher.Constraint("DistanceY", -1, 1, 68, 3, Q("7.9947 mm")),
    Sketcher.Constraint("DistanceY", 70, 3, -1, 1, Q("0.0053 mm")),
    Sketcher.Constraint("DistanceY", -1, 1, 74, 3, Q("5.9947 mm")),
    Sketcher.Constraint("DistanceY", -1, 1, 80, 3, Q("3.9947 mm")),
    Sketcher.Constraint("DistanceY", -1, 1, 81, 3, Q("1.9947 mm")),
])
pocket2 = doc.addObject("PartDesign::Pocket", "Pocket001")
body.addObject(pocket2)
pocket2.Profile = sketch4
pocket2.Length = 8

doc.recompute()
